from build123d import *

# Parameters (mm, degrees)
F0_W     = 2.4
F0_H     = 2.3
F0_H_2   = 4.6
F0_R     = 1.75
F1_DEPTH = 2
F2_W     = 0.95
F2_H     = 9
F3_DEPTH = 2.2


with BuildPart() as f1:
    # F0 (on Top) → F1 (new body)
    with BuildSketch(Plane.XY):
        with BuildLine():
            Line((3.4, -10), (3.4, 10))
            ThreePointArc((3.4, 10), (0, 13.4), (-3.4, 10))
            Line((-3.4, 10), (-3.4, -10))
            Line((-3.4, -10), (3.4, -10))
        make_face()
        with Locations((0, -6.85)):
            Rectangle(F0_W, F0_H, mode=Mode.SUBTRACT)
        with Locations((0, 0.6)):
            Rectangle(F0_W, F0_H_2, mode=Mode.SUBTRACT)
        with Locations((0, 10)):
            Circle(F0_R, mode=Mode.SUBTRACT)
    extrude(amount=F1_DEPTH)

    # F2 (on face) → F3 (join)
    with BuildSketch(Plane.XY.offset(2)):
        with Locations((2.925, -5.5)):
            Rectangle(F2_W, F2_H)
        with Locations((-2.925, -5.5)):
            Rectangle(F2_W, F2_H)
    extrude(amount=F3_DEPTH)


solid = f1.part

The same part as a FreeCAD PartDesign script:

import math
import FreeCAD as App
import Part
import Sketcher
from FreeCAD import Vector
Q = App.Units.Quantity

doc = App.newDocument("Part")
body = doc.addObject("PartDesign::Body", "Body")

# Sketch on XY plane
sketch1 = body.newObject("Sketcher::SketchObject", "Sketch")
sketch1.AttachmentSupport = (doc.getObject("XY_Plane"), [""])
sketch1.MapMode = "FlatFace"
sketch1.addGeometry(Part.LineSegment(Vector(3.4, -10, 0), Vector(3.4, 10, 0)), False)
sketch1.addGeometry(Part.ArcOfCircle(Part.Circle(Vector(0, 10, 0), Vector(0, 0, 1), 3.4), math.radians(0), math.radians(180)), False)
sketch1.addGeometry(Part.LineSegment(Vector(-3.4, 10, 0), Vector(-3.4, -10, 0)), False)
sketch1.addGeometry(Part.LineSegment(Vector(-3.4, -10, 0), Vector(3.4, -10, 0)), False)
sketch1.addGeometry(Part.LineSegment(Vector(1.2, -8, 0), Vector(-1.2, -8, 0)), False)
sketch1.addGeometry(Part.LineSegment(Vector(-1.2, -8, 0), Vector(-1.2, -5.7, 0)), False)
sketch1.addGeometry(Part.LineSegment(Vector(-1.2, -5.7, 0), Vector(1.2, -5.7, 0)), False)
sketch1.addGeometry(Part.LineSegment(Vector(1.2, -5.7, 0), Vector(1.2, -8, 0)), False)
sketch1.addGeometry(Part.LineSegment(Vector(1.2, -1.7, 0), Vector(-1.2, -1.7, 0)), False)
sketch1.addGeometry(Part.LineSegment(Vector(-1.2, -1.7, 0), Vector(-1.2, 2.9, 0)), False)
sketch1.addGeometry(Part.LineSegment(Vector(-1.2, 2.9, 0), Vector(1.2, 2.9, 0)), False)
sketch1.addGeometry(Part.LineSegment(Vector(1.2, 2.9, 0), Vector(1.2, -1.7, 0)), False)
sketch1.addGeometry(Part.Circle(Vector(0, 10, 0), Vector(0, 0, 1), 1.8), False)
sketch1.addConstraint(Sketcher.Constraint("Tangent", 0, 2, 1, 1))
sketch1.addConstraint(Sketcher.Constraint("Tangent", 1, 2, 2, 1))
sketch1.addConstraint(Sketcher.Constraint("Coincident", 2, 2, 3, 1))
sketch1.addConstraint(Sketcher.Constraint("Coincident", 3, 2, 0, 1))
sketch1.addConstraint(Sketcher.Constraint("Coincident", 4, 2, 5, 1))
sketch1.addConstraint(Sketcher.Constraint("Coincident", 5, 2, 6, 1))
sketch1.addConstraint(Sketcher.Constraint("Coincident", 6, 2, 7, 1))
sketch1.addConstraint(Sketcher.Constraint("Coincident", 7, 2, 4, 1))
sketch1.addConstraint(Sketcher.Constraint("Coincident", 8, 2, 9, 1))
sketch1.addConstraint(Sketcher.Constraint("Coincident", 9, 2, 10, 1))
sketch1.addConstraint(Sketcher.Constraint("Coincident", 10, 2, 11, 1))
sketch1.addConstraint(Sketcher.Constraint("Coincident", 11, 2, 8, 1))
sketch1.addConstraint(Sketcher.Constraint("Vertical", 0))
sketch1.addConstraint(Sketcher.Constraint("Vertical", 2))
sketch1.addConstraint(Sketcher.Constraint("Horizontal", 3))
sketch1.addConstraint(Sketcher.Constraint("Horizontal", 4))
sketch1.addConstraint(Sketcher.Constraint("Vertical", 5))
sketch1.addConstraint(Sketcher.Constraint("Horizontal", 6))
sketch1.addConstraint(Sketcher.Constraint("Vertical", 7))
sketch1.addConstraint(Sketcher.Constraint("Horizontal", 8))
sketch1.addConstraint(Sketcher.Constraint("Vertical", 9))
sketch1.addConstraint(Sketcher.Constraint("Horizontal", 10))
sketch1.addConstraint(Sketcher.Constraint("Vertical", 11))
sketch1.addConstraint(Sketcher.Constraint("Coincident", 12, 3, 1, 3))
sketch1.addConstraint(Sketcher.Constraint("Symmetric", 0, 2, 2, 2, -1, 1))
sketch1.addConstraint(Sketcher.Constraint("Vertical", 5, 2, 8, 2))
sketch1.addConstraint(Sketcher.Constraint("Vertical", 7, 2, 10, 2))
sketch1.addConstraint(Sketcher.Constraint("Diameter", 12, Q("3.5 mm")))
sketch1.addConstraint(Sketcher.Constraint("Radius", 1, Q("3.4 mm")))
sketch1.addConstraint(Sketcher.Constraint("DistanceY", 0, 1, 0, 2, Q("20 mm")))
sketch1.addConstraint(Sketcher.Constraint("DistanceX", 4, 2, 4, 1, Q("2.4 mm")))
sketch1.addConstraint(Sketcher.Constraint("DistanceY", 5, 1, 5, 2, Q("2.3 mm")))
sketch1.addConstraint(Sketcher.Constraint("DistanceY", 9, 1, 9, 2, Q("4.6 mm")))
sketch1.addConstraint(Sketcher.Constraint("DistanceY", 4, 2, -1, 1, Q("8 mm")))
sketch1.addConstraint(Sketcher.Constraint("DistanceY", 5, 2, 8, 2, Q("4 mm")))
sketch1.addConstraint(Sketcher.Constraint("DistanceX", 4, 2, -1, 1, Q("1.2 mm")))
pad1 = body.newObject("PartDesign::Pad", "Pad")
pad1.Profile = sketch1
pad1.Length = 2

# Sketch on XY plane
sketch2 = body.newObject("Sketcher::SketchObject", "Sketch001")
sketch2.AttachmentSupport = (doc.getObject("XY_Plane"), [""])
sketch2.MapMode = "FlatFace"
sketch2.AttachmentOffset = App.Placement(Vector(0, 0, 2), App.Rotation())
sketch2.addGeometry(Part.LineSegment(Vector(2.5, -1, 0), Vector(2.5, -10, 0)), False)
sketch2.addGeometry(Part.LineSegment(Vector(2.5, -10, 0), Vector(3.4, -10, 0)), False)
sketch2.addGeometry(Part.LineSegment(Vector(3.4, -10, 0), Vector(3.4, -1, 0)), False)
sketch2.addGeometry(Part.LineSegment(Vector(3.4, -1, 0), Vector(2.5, -1, 0)), False)
sketch2.addGeometry(Part.LineSegment(Vector(-3.4, -1, 0), Vector(-3.4, -10, 0)), False)
sketch2.addGeometry(Part.LineSegment(Vector(-3.4, -10, 0), Vector(-2.5, -10, 0)), False)
sketch2.addGeometry(Part.LineSegment(Vector(-2.5, -10, 0), Vector(-2.5, -1, 0)), False)
sketch2.addGeometry(Part.LineSegment(Vector(-2.5, -1, 0), Vector(-3.4, -1, 0)), False)
sketch2.addConstraint(Sketcher.Constraint("Coincident", 0, 2, 1, 1))
sketch2.addConstraint(Sketcher.Constraint("Coincident", 1, 2, 2, 1))
sketch2.addConstraint(Sketcher.Constraint("Coincident", 2, 2, 3, 1))
sketch2.addConstraint(Sketcher.Constraint("Coincident", 3, 2, 0, 1))
sketch2.addConstraint(Sketcher.Constraint("Coincident", 4, 2, 5, 1))
sketch2.addConstraint(Sketcher.Constraint("Coincident", 5, 2, 6, 1))
sketch2.addConstraint(Sketcher.Constraint("Coincident", 6, 2, 7, 1))
sketch2.addConstraint(Sketcher.Constraint("Coincident", 7, 2, 4, 1))
sketch2.addConstraint(Sketcher.Constraint("Vertical", 0))
sketch2.addConstraint(Sketcher.Constraint("Horizontal", 1))
sketch2.addConstraint(Sketcher.Constraint("Vertical", 2))
sketch2.addConstraint(Sketcher.Constraint("Horizontal", 3))
sketch2.addConstraint(Sketcher.Constraint("Vertical", 4))
sketch2.addConstraint(Sketcher.Constraint("Horizontal", 5))
sketch2.addConstraint(Sketcher.Constraint("Vertical", 6))
sketch2.addConstraint(Sketcher.Constraint("Horizontal", 7))
sketch2.addConstraint(Sketcher.Constraint("Symmetric", 1, 2, 4, 2, -2))
sketch2.addConstraint(Sketcher.Constraint("Symmetric", 3, 2, 6, 2, -2))
sketch2.addConstraint(Sketcher.Constraint("DistanceY", 0, 2, 0, 1, Q("9 mm")))
sketch2.addConstraint(Sketcher.Constraint("DistanceY", 0, 2, -1, 1, Q("10 mm")))
sketch2.addConstraint(Sketcher.Constraint("DistanceX", 1, 1, 1, 2, Q("0.95 mm")))
sketch2.addConstraint(Sketcher.Constraint("DistanceX", -1, 1, 1, 2, Q("3.4 mm")))
pad2 = body.newObject("PartDesign::Pad", "Pad001")
pad2.Profile = sketch2
pad2.Length = 2.2

doc.recompute()
